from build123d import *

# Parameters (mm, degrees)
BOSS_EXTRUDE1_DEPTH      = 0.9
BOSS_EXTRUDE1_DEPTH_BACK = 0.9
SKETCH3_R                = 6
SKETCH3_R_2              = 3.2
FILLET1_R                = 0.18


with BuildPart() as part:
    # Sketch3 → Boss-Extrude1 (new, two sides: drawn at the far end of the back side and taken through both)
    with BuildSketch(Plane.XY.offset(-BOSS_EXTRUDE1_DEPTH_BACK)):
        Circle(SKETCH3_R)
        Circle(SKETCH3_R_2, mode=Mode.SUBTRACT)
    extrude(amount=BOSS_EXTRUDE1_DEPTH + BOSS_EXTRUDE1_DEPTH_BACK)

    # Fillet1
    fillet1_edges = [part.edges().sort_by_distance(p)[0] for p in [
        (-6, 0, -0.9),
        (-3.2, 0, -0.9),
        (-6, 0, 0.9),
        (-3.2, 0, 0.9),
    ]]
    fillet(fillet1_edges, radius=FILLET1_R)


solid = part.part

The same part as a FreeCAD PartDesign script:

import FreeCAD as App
import Part
import Sketcher

V = App.Vector
Q = App.Units.Quantity


def edges_at(feature, points):
    """Names of the edges that pass closest to the given points."""
    edges = feature.Shape.Edges
    near = lambda p: min(range(len(edges)), key=lambda i: edges[i].distToShape(Part.Vertex(*p))[0])
    return sorted({f"Edge{near(p) + 1}" for p in points})

doc = App.newDocument("Part")
body = doc.addObject("PartDesign::Body", "Body")

sketch1 = body.newObject("Sketcher::SketchObject", "Sketch")
sketch1.AttachmentSupport = (doc.getObject("XY_Plane"), [""])
sketch1.MapMode = "FlatFace"
sketch1.addGeometry([
    Part.Circle(V(0, 0, 0), V(0, 0, 1), 6),
    Part.Circle(V(0, 0, 0), V(0, 0, 1), 3.2),
], False)
sketch1.addConstraint([
    Sketcher.Constraint("Coincident", 0, 3, -1, 1),
    Sketcher.Constraint("Coincident", 1, 3, -1, 1),
    Sketcher.Constraint("Diameter", 0, Q("12 mm")),
    Sketcher.Constraint("Diameter", 1, Q("6.4 mm")),
])
pad1 = body.newObject("PartDesign::Pad", "Pad")
pad1.Profile = sketch1
pad1.Type = "TwoLengths"
pad1.Length = 0.9
pad1.Length2 = 0.9
doc.recompute()

fillet = body.newObject("PartDesign::Fillet", "Fillet")
fillet.Base = (pad1, edges_at(pad1, [
    (-6, 0, -0.9),
    (-3.2, 0, -0.9),
    (-6, 0, 0.9),
    (-3.2, 0, 0.9),
]))
fillet.Radius = 0.18

doc.recompute()
